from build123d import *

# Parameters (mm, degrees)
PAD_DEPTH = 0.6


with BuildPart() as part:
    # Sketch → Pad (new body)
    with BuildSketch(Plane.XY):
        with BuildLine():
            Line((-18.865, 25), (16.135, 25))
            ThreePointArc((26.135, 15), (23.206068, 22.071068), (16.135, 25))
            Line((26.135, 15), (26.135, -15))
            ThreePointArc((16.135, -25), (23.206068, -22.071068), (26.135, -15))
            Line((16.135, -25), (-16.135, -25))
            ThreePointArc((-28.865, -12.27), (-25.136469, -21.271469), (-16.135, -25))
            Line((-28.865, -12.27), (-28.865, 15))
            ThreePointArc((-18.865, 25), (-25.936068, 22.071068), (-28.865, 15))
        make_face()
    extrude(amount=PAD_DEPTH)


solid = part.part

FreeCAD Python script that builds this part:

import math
import FreeCAD as App
import Part
import Sketcher
from FreeCAD import Vector
Q = App.Units.Quantity

doc = App.newDocument("Part")
body = doc.addObject("PartDesign::Body", "Body")

# Sketch on XY plane
sketch1 = doc.addObject("Sketcher::SketchObject", "Sketch")
body.addObject(sketch1)
sketch1.AttachmentSupport = (doc.XY_Plane, [""])
sketch1.MapMode = "FlatFace"
sketch1.addGeometry([
    Part.LineSegment(Vector(16, 25, 0), Vector(-19, 25, 0)),  # 0
    Part.ArcOfCircle(Part.Circle(Vector(-19, 15, 0), Vector(0, 0, 1), 10), math.radians(90), math.radians(180)),  # 1
    Part.LineSegment(Vector(-29, 15, 0), Vector(-29, -12, 0)),  # 2
    Part.ArcOfCircle(Part.Circle(Vector(-16, -12, 0), Vector(0, 0, 1), 13), math.radians(-180), math.radians(-90)),  # 3
    Part.LineSegment(Vector(-16, -25, 0), Vector(16, -25, 0)),  # 4
    Part.ArcOfCircle(Part.Circle(Vector(16, -15, 0), Vector(0, 0, 1), 10), math.radians(-90), math.radians(0)),  # 5
    Part.LineSegment(Vector(26, -15, 0), Vector(26, 15, 0)),  # 6
    Part.ArcOfCircle(Part.Circle(Vector(16, 15, 0), Vector(0, 0, 1), 10), math.radians(0), math.radians(90)),  # 7
], False)
sketch1.addConstraint([
    Sketcher.Constraint("Tangent", 0, 2, 1, 1),
    Sketcher.Constraint("Tangent", 1, 2, 2, 1),
    Sketcher.Constraint("Tangent", 2, 2, 3, 1),
    Sketcher.Constraint("Tangent", 3, 2, 4, 1),
    Sketcher.Constraint("Tangent", 4, 2, 5, 1),
    Sketcher.Constraint("Tangent", 5, 2, 6, 1),
    Sketcher.Constraint("Tangent", 6, 2, 7, 1),
    Sketcher.Constraint("Tangent", 7, 2, 0, 1),
    Sketcher.Constraint("Horizontal", 0),
    Sketcher.Constraint("Vertical", 2),
    Sketcher.Constraint("Horizontal", 4),
    Sketcher.Constraint("Vertical", 6),
    Sketcher.Constraint("Equal", 1, 5),
    Sketcher.Constraint("Equal", 5, 7),
    Sketcher.Constraint("Symmetric", 3, 2, 7, 2, -1, 1),
    Sketcher.Constraint("Radius", 1, Q("9.999999 mm")),
    Sketcher.Constraint("DistanceX", 0, 2, 0, 1, Q("35 mm")),
    Sketcher.Constraint("DistanceY", 6, 1, 6, 2, Q("30 mm")),
    Sketcher.Constraint("Radius", 3, Q("12.730001 mm")),
])
pad1 = doc.addObject("PartDesign::Pad", "Pad")
body.addObject(pad1)
pad1.Profile = sketch1
pad1.Length = 0.6

doc.recompute()
